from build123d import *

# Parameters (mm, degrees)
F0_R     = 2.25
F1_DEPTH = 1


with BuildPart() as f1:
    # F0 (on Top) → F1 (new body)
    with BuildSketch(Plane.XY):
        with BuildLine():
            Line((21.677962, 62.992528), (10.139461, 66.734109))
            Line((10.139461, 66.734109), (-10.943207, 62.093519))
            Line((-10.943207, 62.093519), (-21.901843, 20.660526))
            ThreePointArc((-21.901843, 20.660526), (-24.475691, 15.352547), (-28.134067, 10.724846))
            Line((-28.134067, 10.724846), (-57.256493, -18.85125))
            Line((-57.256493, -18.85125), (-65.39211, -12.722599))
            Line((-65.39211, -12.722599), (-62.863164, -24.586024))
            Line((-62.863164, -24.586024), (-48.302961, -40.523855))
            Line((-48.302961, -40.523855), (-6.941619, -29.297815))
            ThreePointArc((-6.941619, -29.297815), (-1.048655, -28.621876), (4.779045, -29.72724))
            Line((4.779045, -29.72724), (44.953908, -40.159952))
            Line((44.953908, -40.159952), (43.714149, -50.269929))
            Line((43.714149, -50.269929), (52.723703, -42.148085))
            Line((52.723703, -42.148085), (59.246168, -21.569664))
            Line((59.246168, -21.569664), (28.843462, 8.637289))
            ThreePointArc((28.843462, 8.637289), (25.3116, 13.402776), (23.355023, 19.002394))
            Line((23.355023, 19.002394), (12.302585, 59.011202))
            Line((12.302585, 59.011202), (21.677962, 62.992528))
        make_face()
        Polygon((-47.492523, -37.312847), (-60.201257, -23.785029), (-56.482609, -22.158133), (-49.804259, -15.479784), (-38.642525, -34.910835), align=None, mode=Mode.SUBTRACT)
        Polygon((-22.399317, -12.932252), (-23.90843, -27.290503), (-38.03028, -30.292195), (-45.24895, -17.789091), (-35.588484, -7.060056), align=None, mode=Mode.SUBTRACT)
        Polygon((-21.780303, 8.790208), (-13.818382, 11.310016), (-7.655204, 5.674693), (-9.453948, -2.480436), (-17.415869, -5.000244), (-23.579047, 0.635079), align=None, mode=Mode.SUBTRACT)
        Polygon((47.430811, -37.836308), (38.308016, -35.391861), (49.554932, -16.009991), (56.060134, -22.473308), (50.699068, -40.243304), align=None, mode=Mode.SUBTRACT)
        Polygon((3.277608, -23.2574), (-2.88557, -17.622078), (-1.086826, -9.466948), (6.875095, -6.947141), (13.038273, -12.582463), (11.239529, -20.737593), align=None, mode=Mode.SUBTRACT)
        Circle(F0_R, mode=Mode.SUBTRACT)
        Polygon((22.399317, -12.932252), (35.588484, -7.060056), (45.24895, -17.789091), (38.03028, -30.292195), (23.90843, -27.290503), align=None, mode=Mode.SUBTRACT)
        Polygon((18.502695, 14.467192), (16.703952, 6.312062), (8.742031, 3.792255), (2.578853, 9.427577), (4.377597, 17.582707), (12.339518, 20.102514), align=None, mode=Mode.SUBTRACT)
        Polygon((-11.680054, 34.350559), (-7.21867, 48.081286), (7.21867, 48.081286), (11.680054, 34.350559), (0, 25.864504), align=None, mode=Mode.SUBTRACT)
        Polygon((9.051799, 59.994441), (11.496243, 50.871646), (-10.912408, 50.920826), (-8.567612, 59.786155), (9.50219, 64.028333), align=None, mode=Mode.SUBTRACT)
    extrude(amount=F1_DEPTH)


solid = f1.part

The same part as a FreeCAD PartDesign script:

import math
import FreeCAD as App
import Part
import Sketcher
from FreeCAD import Vector
Q = App.Units.Quantity


def add_polygon(sketch, points):
    """Adds a closed chain of lines whose ends are joined by coincident constraints."""
    first, n = sketch.GeometryCount, len(points)
    for a, b in zip(points, points[1:] + points[:1]):
        sketch.addGeometry(Part.LineSegment(App.Vector(*a, 0), App.Vector(*b, 0)), False)
    for i in range(n):
        sketch.addConstraint(Sketcher.Constraint("Coincident", first + i, 2, first + (i + 1) % n, 1))

doc = App.newDocument("Part")
body = doc.addObject("PartDesign::Body", "Body")

# Sketch on XY plane
sketch1 = body.newObject("Sketcher::SketchObject", "Sketch")
sketch1.AttachmentSupport = (doc.getObject("XY_Plane"), [""])
sketch1.MapMode = "FlatFace"
sketch1.addGeometry(Part.LineSegment(Vector(21.677962, 62.992528, 0), Vector(10.139461, 66.734109, 0)), False)  # 0
sketch1.addGeometry(Part.LineSegment(Vector(10.139461, 66.734109, 0), Vector(-10.943207, 62.093519, 0)), False)  # 1
sketch1.addGeometry(Part.LineSegment(Vector(-10.943207, 62.093519, 0), Vector(-21.901843, 20.660526, 0)), False)  # 2
sketch1.addGeometry(Part.ArcOfCircle(Part.Circle(Vector(-47.502742, 29.796424, 0), Vector(0, 0, 1), 27.182175), math.radians(-44.557182), math.radians(-19.639373)), False)  # 3
sketch1.addGeometry(Part.LineSegment(Vector(-28.134067, 10.724846, 0), Vector(-57.256493, -18.85125, 0)), False)  # 4
sketch1.addGeometry(Part.LineSegment(Vector(-57.256493, -18.85125, 0), Vector(-65.39211, -12.722599, 0)), False)  # 5
sketch1.addGeometry(Part.LineSegment(Vector(-65.39211, -12.722599, 0), Vector(-62.863164, -24.586024, 0)), False)  # 6
sketch1.addGeometry(Part.LineSegment(Vector(-62.863164, -24.586024, 0), Vector(-48.302961, -40.523855, 0)), False)  # 7
sketch1.addGeometry(Part.LineSegment(Vector(-48.302961, -40.523855, 0), Vector(-6.941619, -29.297815, 0)), False)  # 8
sketch1.addGeometry(Part.ArcOfCircle(Part.Circle(Vector(-1.771356, -48.347184, 0), Vector(0, 0, 1), 19.738543), math.radians(70.618388), math.radians(105.185051)), False)  # 9
sketch1.addGeometry(Part.LineSegment(Vector(4.779045, -29.72724, 0), Vector(44.953908, -40.159952, 0)), False)  # 10
sketch1.addGeometry(Part.LineSegment(Vector(44.953908, -40.159952, 0), Vector(43.714149, -50.269929, 0)), False)  # 11
sketch1.addGeometry(Part.LineSegment(Vector(43.714149, -50.269929, 0), Vector(52.723703, -42.148085, 0)), False)  # 12
sketch1.addGeometry(Part.LineSegment(Vector(52.723703, -42.148085, 0), Vector(59.246168, -21.569664, 0)), False)  # 13
sketch1.addGeometry(Part.LineSegment(Vector(59.246168, -21.569664, 0), Vector(28.843462, 8.637289, 0)), False)  # 14
sketch1.addGeometry(Part.ArcOfCircle(Part.Circle(Vector(42.755574, 22.639556, 0), Vector(0, 0, 1), 19.73855), math.radians(-169.381605), math.radians(-134.814955)), False)  # 15
sketch1.addGeometry(Part.LineSegment(Vector(23.355023, 19.002394, 0), Vector(12.302585, 59.011202, 0)), False)  # 16
sketch1.addGeometry(Part.LineSegment(Vector(12.302585, 59.011202, 0), Vector(21.677962, 62.992528, 0)), False)  # 17
add_polygon(sketch1, [(-38.642525, -34.910835), (-47.492523, -37.312847), (-60.201257, -23.785029), (-56.482609, -22.158133), (-49.804259, -15.479784)])  # lines 18-22
add_polygon(sketch1, [(-35.588484, -7.060056), (-22.399317, -12.932252), (-23.90843, -27.290503), (-38.03028, -30.292195), (-45.24895, -17.789091)])  # lines 23-27
add_polygon(sketch1, [(-23.579047, 0.635079), (-21.780303, 8.790208), (-13.818382, 11.310016), (-7.655204, 5.674693), (-9.453948, -2.480436), (-17.415869, -5.000244)])  # lines 28-33
add_polygon(sketch1, [(11.239529, -20.737593), (3.277608, -23.2574), (-2.88557, -17.622078), (-1.086826, -9.466948), (6.875095, -6.947141), (13.038273, -12.582463)])  # lines 34-39
add_polygon(sketch1, [(50.699068, -40.243304), (47.430811, -37.836308), (38.308016, -35.391861), (49.554932, -16.009991), (56.060134, -22.473308)])  # lines 40-44
add_polygon(sketch1, [(23.90843, -27.290503), (22.399317, -12.932252), (35.588484, -7.060056), (45.24895, -17.789091), (38.03028, -30.292195)])  # lines 45-49
sketch1.addGeometry(Part.Circle(Vector(0, 0, 0), Vector(0, 0, 1), 2.25), False)  # 50
add_polygon(sketch1, [(12.339518, 20.102514), (18.502695, 14.467192), (16.703952, 6.312062), (8.742031, 3.792255), (2.578853, 9.427577), (4.377597, 17.582707)])  # lines 51-56
add_polygon(sketch1, [(0, 25.864504), (-11.680054, 34.350559), (-7.21867, 48.081286), (7.21867, 48.081286), (11.680054, 34.350559)])  # lines 57-61
add_polygon(sketch1, [(9.50219, 64.028333), (9.051799, 59.994441), (11.496243, 50.871646), (-10.912408, 50.920826), (-8.567612, 59.786155)])  # lines 62-66
sketch1.addConstraint([
    Sketcher.Constraint("Coincident", 0, 2, 1, 1),
    Sketcher.Constraint("Coincident", 1, 2, 2, 1),
    Sketcher.Constraint("Coincident", 2, 2, 3, 2),
    Sketcher.Constraint("Tangent", 3, 1, 4, 1),
    Sketcher.Constraint("Coincident", 4, 2, 5, 1),
    Sketcher.Constraint("Coincident", 5, 2, 6, 1),
    Sketcher.Constraint("Coincident", 6, 2, 7, 1),
    Sketcher.Constraint("Coincident", 7, 2, 8, 1),
    Sketcher.Constraint("Tangent", 8, 2, 9, 2),
    Sketcher.Constraint("Coincident", 9, 1, 10, 1),
    Sketcher.Constraint("Coincident", 10, 2, 11, 1),
    Sketcher.Constraint("Coincident", 11, 2, 12, 1),
    Sketcher.Constraint("Coincident", 12, 2, 13, 1),
    Sketcher.Constraint("Coincident", 13, 2, 14, 1),
    Sketcher.Constraint("Tangent", 14, 2, 15, 2),
    Sketcher.Constraint("Coincident", 15, 1, 16, 1),
    Sketcher.Constraint("Coincident", 16, 2, 17, 1),
    Sketcher.Constraint("Coincident", 17, 2, 0, 1),
    Sketcher.Constraint("Horizontal", 59),
    Sketcher.Constraint("Coincident", 50, 3, -1, 1),
    Sketcher.Constraint("Symmetric", 23, 2, 45, 2, -2),
    Sketcher.Constraint("Symmetric", 27, 2, 46, 2, -2),
    Sketcher.Constraint("Symmetric", 26, 2, 47, 2, -2),
    Sketcher.Constraint("Symmetric", 25, 2, 48, 2, -2),
    Sketcher.Constraint("Symmetric", 24, 2, 49, 2, -2),
    Sketcher.Constraint("Symmetric", 57, 2, 60, 2, -2),
    Sketcher.Constraint("PointOnObject", 61, 2, -2),
    Sketcher.Constraint("Parallel", 8, 18),
    Sketcher.Constraint("Parallel", 28, 31),
    Sketcher.Constraint("Parallel", 29, 32),
    Sketcher.Constraint("Parallel", 30, 33),
    Sketcher.Constraint("Parallel", 32, 34),
    Sketcher.Constraint("Parallel", 33, 35),
    Sketcher.Constraint("Parallel", 31, 36),
    Sketcher.Constraint("Parallel", 34, 37),
    Sketcher.Constraint("Parallel", 35, 38),
    Sketcher.Constraint("Parallel", 36, 39),
    Sketcher.Constraint("Parallel", 14, 43),
    Sketcher.Constraint("Parallel", 38, 51),
    Sketcher.Constraint("Parallel", 39, 52),
    Sketcher.Constraint("Parallel", 37, 53),
    Sketcher.Constraint("Parallel", 51, 54),
    Sketcher.Constraint("Parallel", 52, 55),
    Sketcher.Constraint("Parallel", 53, 56),
    Sketcher.Constraint("Parallel", 2, 65),
    Sketcher.Constraint("Equal", 0, 6),
    Sketcher.Constraint("Equal", 1, 7),
    Sketcher.Constraint("Equal", 2, 8),
    Sketcher.Constraint("Equal", 4, 10),
    Sketcher.Constraint("Equal", 5, 11),
    Sketcher.Constraint("Equal", 6, 12),
    Sketcher.Constraint("Equal", 7, 13),
    Sketcher.Constraint("Equal", 8, 14),
    Sketcher.Constraint("Equal", 10, 16),
    Sketcher.Constraint("Equal", 11, 17),
    Sketcher.Constraint("Equal", 23, 24),
    Sketcher.Constraint("Equal", 24, 25),
    Sketcher.Constraint("Equal", 25, 26),
    Sketcher.Constraint("Equal", 26, 27),
    Sketcher.Constraint("Equal", 28, 29),
    Sketcher.Constraint("Equal", 29, 30),
    Sketcher.Constraint("Equal", 30, 31),
    Sketcher.Constraint("Equal", 33, 34),
    Sketcher.Constraint("Equal", 34, 35),
    Sketcher.Constraint("Equal", 35, 36),
    Sketcher.Constraint("Equal", 36, 37),
    Sketcher.Constraint("Equal", 20, 40),
    Sketcher.Constraint("Equal", 21, 41),
    Sketcher.Constraint("Equal", 22, 42),
    Sketcher.Constraint("Equal", 18, 43),
    Sketcher.Constraint("Equal", 19, 44),
    Sketcher.Constraint("Equal", 39, 51),
    Sketcher.Constraint("Equal", 51, 52),
    Sketcher.Constraint("Equal", 52, 53),
    Sketcher.Constraint("Equal", 53, 54),
    Sketcher.Constraint("Equal", 49, 57),
    Sketcher.Constraint("Equal", 57, 58),
    Sketcher.Constraint("Equal", 58, 60),
    Sketcher.Constraint("Equal", 40, 62),
    Sketcher.Constraint("Equal", 41, 63),
    Sketcher.Constraint("Equal", 42, 64),
    Sketcher.Constraint("Equal", 43, 65),
    Sketcher.Constraint("Equal", 44, 66),
    Sketcher.Constraint("Diameter", 50, 4.5),
    Sketcher.Constraint("Angle", 21, Q("44.999996 deg")),
    Sketcher.Constraint("Angle", 23, Q("-24.000002 deg")),
    Sketcher.Constraint("Angle", 24, Q("-96 deg")),
    Sketcher.Constraint("Angle", 25, Q("-168 deg")),
    Sketcher.Constraint("Angle", 41, Q("164.999992 deg")),
    Sketcher.Constraint("Angle", 57, Q("144.000003 deg")),
    Sketcher.Constraint("Angle", 58, Q("71.999999 deg")),
    Sketcher.Constraint("Angle", 63, Q("-75.000009 deg")),
    Sketcher.Constraint("Radius", 15, 19.73855),
    Sketcher.Constraint("Radius", 3, 27.182175),
    Sketcher.Constraint("Radius", 9, 19.738543),
    Sketcher.Constraint("DistanceX", 59, 1, 59, 2, 14.43734),
    Sketcher.Constraint("DistanceY", 5, 2, -1, 1, 12.722599),
    Sketcher.Constraint("DistanceY", -1, 1, 16, 2, 59.011202),
    Sketcher.Constraint("DistanceY", 34, 2, -1, 1, 23.2574),
    Sketcher.Constraint("DistanceX", -1, 1, 62, 2, 9.051799),
    Sketcher.Constraint("Distance", 0, 12.129981),
    Sketcher.Constraint("Distance", 10, 41.507362),
    Sketcher.Constraint("Distance", 17, 10.185708),
    Sketcher.Constraint("Distance", 63, 9.444612),
    Sketcher.Constraint("DistanceX", 3, 3, -1, 1, 47.502742),
    Sketcher.Constraint("DistanceX", -1, 1, 0, 2, 10.139461),
    Sketcher.Constraint("DistanceY", -1, 1, 0, 2, 66.734109),
    Sketcher.Constraint("DistanceY", -1, 1, 1, 2, 62.093519),
    Sketcher.Constraint("DistanceY", 4, 2, -1, 1, 18.85125),
    Sketcher.Constraint("DistanceX", 5, 2, -1, 1, 65.39211),
    Sketcher.Constraint("DistanceX", 7, 2, -1, 1, 48.302961),
    Sketcher.Constraint("DistanceX", 8, 2, -1, 1, 6.941619),
    Sketcher.Constraint("DistanceY", 9, 1, -1, 1, 29.72724),
    Sketcher.Constraint("DistanceY", 10, 2, -1, 1, 40.159952),
    Sketcher.Constraint("DistanceX", -1, 1, 11, 2, 43.714149),
    Sketcher.Constraint("DistanceY", 11, 2, -1, 1, 50.269929),
    Sketcher.Constraint("DistanceX", -1, 1, 14, 2, 28.843462),
    Sketcher.Constraint("DistanceY", -1, 1, 14, 2, 8.637289),
    Sketcher.Constraint("DistanceY", 19, 2, -1, 1, 23.785029),
    Sketcher.Constraint("DistanceX", 20, 2, -1, 1, 56.482609),
    Sketcher.Constraint("DistanceX", 24, 2, -1, 1, 23.90843),
    Sketcher.Constraint("DistanceY", 26, 2, -1, 1, 17.789091),
    Sketcher.Constraint("DistanceX", 32, 2, -1, 1, 17.415869),
    Sketcher.Constraint("DistanceY", -1, 1, 33, 2, 0.635079),
    Sketcher.Constraint("DistanceX", 35, 2, -1, 1, 2.88557),
    Sketcher.Constraint("DistanceY", 37, 2, -1, 1, 6.947141),
    Sketcher.Constraint("DistanceX", -1, 1, 39, 2, 11.239529),
    Sketcher.Constraint("DistanceX", -1, 1, 40, 2, 47.430811),
    Sketcher.Constraint("DistanceY", 40, 2, -1, 1, 37.836308),
    Sketcher.Constraint("DistanceY", 42, 2, -1, 1, 16.009991),
    Sketcher.Constraint("DistanceX", -1, 1, 53, 2, 8.742031),
    Sketcher.Constraint("DistanceY", -1, 1, 57, 2, 34.350559),
    Sketcher.Constraint("DistanceY", -1, 1, 62, 2, 59.994441),
    Sketcher.Constraint("DistanceX", -1, 1, 66, 2, 9.50219),
    Sketcher.Constraint("Distance", 1, 21.587357),
    Sketcher.Constraint("Distance", 2, 42.857725),
    Sketcher.Constraint("Distance", 18, 9.170176),
    Sketcher.Constraint("Distance", 19, 18.561082),
    Sketcher.Constraint("Distance", 20, 4.058957),
    Sketcher.Constraint("Distance", 22, 22.408705),
    Sketcher.Constraint("Distance", 28, 8.351144),
    Sketcher.Constraint("DistanceX", -1, 1, 15, 3, 42.755574),
    Sketcher.Constraint("DistanceX", -1, 1, 15, 1, 23.355023),
    Sketcher.Constraint("DistanceX", 18, 2, -1, 1, 47.492523),
    Sketcher.Constraint("DistanceX", 28, 2, -1, 1, 21.780303),
    Sketcher.Constraint("DistanceY", -1, 1, 51, 2, 14.467192),
])
pad1 = body.newObject("PartDesign::Pad", "Pad")
pad1.Profile = sketch1
pad1.Length = 1

doc.recompute()
